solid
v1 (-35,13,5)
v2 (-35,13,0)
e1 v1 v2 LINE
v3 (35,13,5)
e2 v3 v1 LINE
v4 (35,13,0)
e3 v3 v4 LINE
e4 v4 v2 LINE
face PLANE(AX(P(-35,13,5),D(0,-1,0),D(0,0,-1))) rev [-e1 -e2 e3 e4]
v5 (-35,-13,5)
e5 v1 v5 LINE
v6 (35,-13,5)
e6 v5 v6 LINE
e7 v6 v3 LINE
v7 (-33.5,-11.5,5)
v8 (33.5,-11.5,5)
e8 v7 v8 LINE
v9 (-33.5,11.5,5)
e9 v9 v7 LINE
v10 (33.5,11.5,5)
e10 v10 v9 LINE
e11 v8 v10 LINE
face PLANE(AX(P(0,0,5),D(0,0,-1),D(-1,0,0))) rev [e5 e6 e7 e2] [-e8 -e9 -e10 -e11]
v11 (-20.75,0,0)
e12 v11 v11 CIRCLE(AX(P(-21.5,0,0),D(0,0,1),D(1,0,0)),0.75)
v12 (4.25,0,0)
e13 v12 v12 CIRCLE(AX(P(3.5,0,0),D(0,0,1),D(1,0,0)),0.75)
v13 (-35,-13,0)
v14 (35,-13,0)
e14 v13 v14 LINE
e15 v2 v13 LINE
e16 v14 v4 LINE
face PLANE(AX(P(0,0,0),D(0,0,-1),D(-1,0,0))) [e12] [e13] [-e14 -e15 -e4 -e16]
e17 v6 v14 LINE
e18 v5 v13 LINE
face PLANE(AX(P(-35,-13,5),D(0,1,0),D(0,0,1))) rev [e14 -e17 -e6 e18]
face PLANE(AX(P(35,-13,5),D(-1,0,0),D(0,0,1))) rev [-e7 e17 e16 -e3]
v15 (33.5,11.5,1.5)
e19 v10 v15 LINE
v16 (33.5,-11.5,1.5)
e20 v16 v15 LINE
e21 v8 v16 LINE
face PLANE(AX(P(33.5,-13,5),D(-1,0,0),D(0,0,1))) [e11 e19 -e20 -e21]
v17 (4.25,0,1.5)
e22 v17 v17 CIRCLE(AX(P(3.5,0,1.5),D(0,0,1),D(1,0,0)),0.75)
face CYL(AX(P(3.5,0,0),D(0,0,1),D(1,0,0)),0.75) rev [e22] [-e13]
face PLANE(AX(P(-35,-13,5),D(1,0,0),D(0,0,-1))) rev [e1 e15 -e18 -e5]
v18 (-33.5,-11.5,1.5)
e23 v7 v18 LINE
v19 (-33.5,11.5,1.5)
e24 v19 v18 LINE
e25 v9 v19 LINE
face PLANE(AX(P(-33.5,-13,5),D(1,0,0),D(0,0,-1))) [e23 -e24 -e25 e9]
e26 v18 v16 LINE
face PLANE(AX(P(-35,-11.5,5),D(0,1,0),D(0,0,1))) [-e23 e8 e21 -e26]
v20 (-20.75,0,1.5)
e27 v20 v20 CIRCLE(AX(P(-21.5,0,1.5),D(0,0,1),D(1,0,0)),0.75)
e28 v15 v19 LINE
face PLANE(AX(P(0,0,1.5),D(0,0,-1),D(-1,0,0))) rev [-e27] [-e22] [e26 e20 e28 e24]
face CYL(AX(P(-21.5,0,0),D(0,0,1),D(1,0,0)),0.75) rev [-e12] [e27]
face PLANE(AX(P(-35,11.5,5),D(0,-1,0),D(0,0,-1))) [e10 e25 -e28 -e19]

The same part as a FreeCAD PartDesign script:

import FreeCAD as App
import Part
import Sketcher
from FreeCAD import Vector
Q = App.Units.Quantity


def faces_at(feature, points):
    """Names of the faces that lie closest to the given points."""
    faces = feature.Shape.Faces
    near = lambda p: min(range(len(faces)), key=lambda i: faces[i].distToShape(Part.Vertex(*p))[0])
    return sorted({f"Face{near(p) + 1}" for p in points})

doc = App.newDocument("Part")
body = doc.addObject("PartDesign::Body", "Body")

sketch1 = body.newObject("Sketcher::SketchObject", "Sketch")
sketch1.AttachmentSupport = (doc.getObject("XY_Plane"), [""])
sketch1.MapMode = "FlatFace"
sketch1.addGeometry(Part.LineSegment(Vector(-35, 13, 0), Vector(-35, -13, 0)), False)
sketch1.addGeometry(Part.LineSegment(Vector(-35, -13, 0), Vector(35, -13, 0)), False)
sketch1.addGeometry(Part.LineSegment(Vector(35, -13, 0), Vector(35, 13, 0)), False)
sketch1.addGeometry(Part.LineSegment(Vector(35, 13, 0), Vector(-35, 13, 0)), False)
sketch1.addConstraint(Sketcher.Constraint("Coincident", 0, 2, 1, 1))
sketch1.addConstraint(Sketcher.Constraint("Coincident", 1, 2, 2, 1))
sketch1.addConstraint(Sketcher.Constraint("Coincident", 2, 2, 3, 1))
sketch1.addConstraint(Sketcher.Constraint("Coincident", 3, 2, 0, 1))
sketch1.addConstraint(Sketcher.Constraint("Vertical", 0))
sketch1.addConstraint(Sketcher.Constraint("Horizontal", 1))
sketch1.addConstraint(Sketcher.Constraint("Vertical", 2))
sketch1.addConstraint(Sketcher.Constraint("Horizontal", 3))
sketch1.addConstraint(Sketcher.Constraint("Symmetric", 0, 2, 2, 2, -1, 1))
sketch1.addConstraint(Sketcher.Constraint("DistanceX", 1, 1, 1, 2, Q("70 mm")))
sketch1.addConstraint(Sketcher.Constraint("DistanceY", 0, 2, 0, 1, Q("26 mm")))
pad1 = body.newObject("PartDesign::Pad", "Pad")
pad1.Profile = sketch1
pad1.Length = 5
doc.recompute()

thickness = body.newObject("PartDesign::Thickness", "Thickness")
thickness.Base = (pad1, faces_at(pad1, [(0, 0, 5)]))
thickness.Value = 1.5
thickness.Reversed = True
thickness.Join = "Intersection"

sketch2 = body.newObject("Sketcher::SketchObject", "Sketch001")
sketch2.AttachmentSupport = (doc.getObject("XY_Plane"), [""])
sketch2.MapMode = "FlatFace"
sketch2.AttachmentOffset = App.Placement(Vector(0, 0, 1.5), App.Rotation())
sketch2.addGeometry(Part.Circle(Vector(-21.5, 0, 0), Vector(0, 0, 1), 0.75), False)
sketch2.addGeometry(Part.Circle(Vector(3.5, 0, 0), Vector(0, 0, 1), 0.75), False)
sketch2.addConstraint(Sketcher.Constraint("Equal", 0, 1))
sketch2.addConstraint(Sketcher.Constraint("PointOnObject", 0, 3, -1))
sketch2.addConstraint(Sketcher.Constraint("PointOnObject", 1, 3, -1))
sketch2.addConstraint(Sketcher.Constraint("Diameter", 0, Q("1.5 mm")))
sketch2.addConstraint(Sketcher.Constraint("DistanceX", 0, 3, 1, 3, Q("25 mm")))
sketch2.addConstraint(Sketcher.Constraint("DistanceX", 0, 3, -1, 1, Q("21.5 mm")))
pocket1 = body.newObject("PartDesign::Pocket", "Pocket")
pocket1.Profile = sketch2
pocket1.Type = "ThroughAll"

doc.recompute()
